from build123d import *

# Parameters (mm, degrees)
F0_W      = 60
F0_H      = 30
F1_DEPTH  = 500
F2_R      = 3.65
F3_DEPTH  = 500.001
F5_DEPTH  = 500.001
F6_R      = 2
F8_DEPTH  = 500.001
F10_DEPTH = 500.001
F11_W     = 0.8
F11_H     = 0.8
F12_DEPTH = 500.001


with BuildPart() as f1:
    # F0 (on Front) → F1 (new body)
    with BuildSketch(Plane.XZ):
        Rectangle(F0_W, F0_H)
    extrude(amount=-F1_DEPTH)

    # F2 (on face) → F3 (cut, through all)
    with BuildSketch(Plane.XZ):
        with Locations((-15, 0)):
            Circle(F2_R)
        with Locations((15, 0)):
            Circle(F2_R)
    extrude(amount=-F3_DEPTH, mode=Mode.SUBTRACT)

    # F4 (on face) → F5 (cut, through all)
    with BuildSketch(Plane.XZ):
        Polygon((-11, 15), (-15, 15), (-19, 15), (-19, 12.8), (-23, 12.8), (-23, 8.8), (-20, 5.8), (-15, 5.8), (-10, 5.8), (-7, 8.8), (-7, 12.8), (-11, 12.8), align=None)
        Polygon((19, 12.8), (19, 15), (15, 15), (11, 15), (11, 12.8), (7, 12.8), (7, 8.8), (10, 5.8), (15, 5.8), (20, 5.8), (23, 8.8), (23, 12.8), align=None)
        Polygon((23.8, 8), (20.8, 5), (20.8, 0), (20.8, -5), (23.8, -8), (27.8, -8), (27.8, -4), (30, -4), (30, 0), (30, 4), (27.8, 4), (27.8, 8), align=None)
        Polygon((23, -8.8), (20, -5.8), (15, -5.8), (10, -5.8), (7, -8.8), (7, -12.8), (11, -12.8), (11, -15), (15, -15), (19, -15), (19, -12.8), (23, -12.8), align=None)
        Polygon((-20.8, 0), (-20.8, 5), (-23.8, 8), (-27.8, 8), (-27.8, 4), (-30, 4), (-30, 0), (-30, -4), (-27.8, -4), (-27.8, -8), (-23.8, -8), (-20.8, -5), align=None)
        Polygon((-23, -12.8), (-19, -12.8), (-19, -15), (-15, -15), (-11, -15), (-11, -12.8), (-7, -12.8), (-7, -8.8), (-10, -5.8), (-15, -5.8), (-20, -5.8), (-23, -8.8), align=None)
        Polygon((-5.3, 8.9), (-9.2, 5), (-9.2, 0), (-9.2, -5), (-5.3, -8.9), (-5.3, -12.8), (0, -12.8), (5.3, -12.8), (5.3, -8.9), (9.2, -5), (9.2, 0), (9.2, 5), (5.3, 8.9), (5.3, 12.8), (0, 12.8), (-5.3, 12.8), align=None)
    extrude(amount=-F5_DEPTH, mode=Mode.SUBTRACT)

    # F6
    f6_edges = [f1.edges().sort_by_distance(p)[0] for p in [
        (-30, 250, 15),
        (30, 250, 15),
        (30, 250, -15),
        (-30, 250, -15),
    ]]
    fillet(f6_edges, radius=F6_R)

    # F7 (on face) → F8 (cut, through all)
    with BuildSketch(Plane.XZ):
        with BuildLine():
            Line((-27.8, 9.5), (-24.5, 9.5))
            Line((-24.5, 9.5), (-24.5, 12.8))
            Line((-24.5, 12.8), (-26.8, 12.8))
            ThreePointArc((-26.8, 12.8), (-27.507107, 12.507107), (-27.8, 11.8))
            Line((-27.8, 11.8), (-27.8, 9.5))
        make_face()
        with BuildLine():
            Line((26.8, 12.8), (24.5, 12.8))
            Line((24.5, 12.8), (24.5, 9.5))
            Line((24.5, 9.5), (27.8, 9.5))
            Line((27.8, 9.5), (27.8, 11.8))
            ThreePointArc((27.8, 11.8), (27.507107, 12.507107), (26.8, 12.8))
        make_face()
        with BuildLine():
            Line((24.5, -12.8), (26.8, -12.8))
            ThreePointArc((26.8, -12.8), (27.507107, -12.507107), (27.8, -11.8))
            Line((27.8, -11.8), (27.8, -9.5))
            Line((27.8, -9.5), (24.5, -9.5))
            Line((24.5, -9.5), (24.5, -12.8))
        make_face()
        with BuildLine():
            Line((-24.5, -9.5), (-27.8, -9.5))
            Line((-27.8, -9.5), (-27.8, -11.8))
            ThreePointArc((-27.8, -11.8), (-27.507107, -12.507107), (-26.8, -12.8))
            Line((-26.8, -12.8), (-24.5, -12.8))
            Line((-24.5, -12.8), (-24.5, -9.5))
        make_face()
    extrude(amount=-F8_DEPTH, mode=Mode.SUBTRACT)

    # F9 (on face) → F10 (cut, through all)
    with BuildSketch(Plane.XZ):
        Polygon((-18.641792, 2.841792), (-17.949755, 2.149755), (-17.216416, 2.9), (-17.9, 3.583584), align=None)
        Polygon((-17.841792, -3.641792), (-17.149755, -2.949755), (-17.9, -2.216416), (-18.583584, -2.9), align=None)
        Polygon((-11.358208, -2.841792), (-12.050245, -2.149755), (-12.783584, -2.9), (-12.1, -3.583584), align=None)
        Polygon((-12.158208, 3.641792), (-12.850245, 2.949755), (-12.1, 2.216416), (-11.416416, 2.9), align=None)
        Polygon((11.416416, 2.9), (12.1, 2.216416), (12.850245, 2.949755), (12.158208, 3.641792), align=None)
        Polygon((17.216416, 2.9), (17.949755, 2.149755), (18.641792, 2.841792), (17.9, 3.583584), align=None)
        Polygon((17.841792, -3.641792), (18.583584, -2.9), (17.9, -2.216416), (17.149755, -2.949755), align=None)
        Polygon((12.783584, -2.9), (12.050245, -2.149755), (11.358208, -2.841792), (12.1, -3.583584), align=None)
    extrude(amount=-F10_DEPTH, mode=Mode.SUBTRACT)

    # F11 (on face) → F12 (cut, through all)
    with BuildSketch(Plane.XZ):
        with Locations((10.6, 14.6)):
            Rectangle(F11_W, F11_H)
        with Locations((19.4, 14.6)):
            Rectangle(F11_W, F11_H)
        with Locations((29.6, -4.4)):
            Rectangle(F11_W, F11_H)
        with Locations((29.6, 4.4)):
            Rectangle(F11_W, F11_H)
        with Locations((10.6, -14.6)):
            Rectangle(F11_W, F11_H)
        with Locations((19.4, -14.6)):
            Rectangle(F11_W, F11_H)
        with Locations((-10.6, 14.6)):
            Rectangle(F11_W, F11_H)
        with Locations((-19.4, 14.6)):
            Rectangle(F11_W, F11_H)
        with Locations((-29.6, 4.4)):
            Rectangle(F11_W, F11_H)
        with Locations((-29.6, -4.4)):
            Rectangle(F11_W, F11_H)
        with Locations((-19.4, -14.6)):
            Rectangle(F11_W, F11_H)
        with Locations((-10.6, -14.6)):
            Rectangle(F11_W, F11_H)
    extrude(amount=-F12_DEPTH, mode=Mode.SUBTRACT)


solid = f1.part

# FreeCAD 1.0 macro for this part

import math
import FreeCAD as App
import Part
import Sketcher


def edges_at(feature, points):
    """Names of the edges that pass closest to the given points."""
    edges = feature.Shape.Edges
    near = lambda p: min(range(len(edges)), key=lambda i: edges[i].distToShape(Part.Vertex(*p))[0])
    return sorted({f"Edge{near(p) + 1}" for p in points})

doc = App.newDocument("Part")
params = doc.addObject("Spreadsheet::Sheet", "Params")
for row, (alias, value) in enumerate([
    ("sketch1_width", "60 mm"),
    ("sketch1_height", "30 mm"),
    ("pad1_length", "500 mm"),
    ("sketch2_diameter", "7.3 mm"),
    ("sketch3_width", "8 mm"),
    ("sketch3_width2", "4 mm"),
    ("sketch3_width3", "10 mm"),
    ("sketch3_width4", "2.2 mm"),
    ("sketch3_width5", "10.6 mm"),
    ("fillet_radius", "2 mm"),
    ("sketch4_radius", "0.999999 mm"),
    ("sketch4_width", "3.3 mm"),
    ("sketch6_width", "0.8 mm"),
], start=1):
    params.set(f"A{row}", alias)
    params.set(f"B{row}", "=" + value)
    params.setAlias(f"B{row}", alias)

body = doc.addObject("PartDesign::Body", "Body")

# Sketch on XZ plane
sketch1 = body.newObject("Sketcher::SketchObject", "Sketch")
sketch1.AttachmentSupport = (doc.getObject("XZ_Plane"), [""])
sketch1.MapMode = "FlatFace"
sketch1.addGeometry([
    Part.LineSegment(App.Vector(-30, 15, 0), App.Vector(-30, -15, 0)),
    Part.LineSegment(App.Vector(-30, -15, 0), App.Vector(30, -15, 0)),
    Part.LineSegment(App.Vector(30, -15, 0), App.Vector(30, 15, 0)),
    Part.LineSegment(App.Vector(30, 15, 0), App.Vector(-30, 15, 0)),
], False)
sketch1.addConstraint([
    Sketcher.Constraint("Coincident", 0, 2, 1, 1),
    Sketcher.Constraint("Coincident", 1, 2, 2, 1),
    Sketcher.Constraint("Coincident", 2, 2, 3, 1),
    Sketcher.Constraint("Coincident", 3, 2, 0, 1),
    Sketcher.Constraint("Vertical", 0),
    Sketcher.Constraint("Horizontal", 1),
    Sketcher.Constraint("Vertical", 2),
    Sketcher.Constraint("Horizontal", 3),
    Sketcher.Constraint("Symmetric", 0, 2, 2, 2, -1, 1),
    Sketcher.Constraint("DistanceX", 1, 1, 1, 2, 60.0),
    Sketcher.Constraint("DistanceY", 0, 2, 0, 1, 30.0),
])
sketch1.setExpression("Constraints[9]", "Params.sketch1_width")
sketch1.setExpression("Constraints[10]", "Params.sketch1_height")
pad1 = body.newObject("PartDesign::Pad", "Pad")
pad1.Profile = sketch1
pad1.setExpression("Length", "Params.pad1_length")
pad1.Reversed = True

# Sketch on XZ plane
sketch2 = body.newObject("Sketcher::SketchObject", "Sketch001")
sketch2.AttachmentSupport = (doc.getObject("XZ_Plane"), [""])
sketch2.MapMode = "FlatFace"
sketch2.addGeometry([
    Part.Circle(App.Vector(-15, 0, 0), App.Vector(0, 0, 1), 3.6),
    Part.Circle(App.Vector(15, 0, 0), App.Vector(0, 0, 1), 3.6),
], False)
sketch2.addConstraint([
    Sketcher.Constraint("Equal", 0, 1),
    Sketcher.Constraint("Symmetric", 0, 3, 1, 3, -1, 1),
    Sketcher.Constraint("PointOnObject", 0, 3, -1),
    Sketcher.Constraint("Diameter", 0, 7.3),
    Sketcher.Constraint("DistanceX", 0, 3, -1, 1, 15.0),
])
sketch2.setExpression("Constraints[3]", "Params.sketch2_diameter")
pocket1 = body.newObject("PartDesign::Pocket", "Pocket")
pocket1.Profile = sketch2
pocket1.Type = "ThroughAll"

# Sketch on XZ plane
sketch3 = body.newObject("Sketcher::SketchObject", "Sketch002")
sketch3.AttachmentSupport = (doc.getObject("XZ_Plane"), [""])
sketch3.MapMode = "FlatFace"
sketch3.addGeometry([
    Part.LineSegment(App.Vector(-11, 15, 0), App.Vector(-19, 15, 0)),  # 0
    Part.LineSegment(App.Vector(-19, 15, 0), App.Vector(-19, 12.8, 0)),  # 1
    Part.LineSegment(App.Vector(-19, 12.8, 0), App.Vector(-23, 12.8, 0)),  # 2
    Part.LineSegment(App.Vector(-23, 12.8, 0), App.Vector(-23, 8.8, 0)),  # 3
    Part.LineSegment(App.Vector(-23, 8.8, 0), App.Vector(-20, 5.8, 0)),  # 4
    Part.LineSegment(App.Vector(-20, 5.8, 0), App.Vector(-10, 5.8, 0)),  # 5
    Part.LineSegment(App.Vector(-10, 5.8, 0), App.Vector(-7, 8.8, 0)),  # 6
    Part.LineSegment(App.Vector(-7, 8.8, 0), App.Vector(-7, 12.8, 0)),  # 7
    Part.LineSegment(App.Vector(-7, 12.8, 0), App.Vector(-11, 12.8, 0)),  # 8
    Part.LineSegment(App.Vector(-11, 12.8, 0), App.Vector(-11, 15, 0)),  # 9
    Part.LineSegment(App.Vector(19, 12.8, 0), App.Vector(19, 15, 0)),  # 10
    Part.LineSegment(App.Vector(19, 15, 0), App.Vector(11, 15, 0)),  # 11
    Part.LineSegment(App.Vector(11, 15, 0), App.Vector(11, 12.8, 0)),  # 12
    Part.LineSegment(App.Vector(11, 12.8, 0), App.Vector(7, 12.8, 0)),  # 13
    Part.LineSegment(App.Vector(7, 12.8, 0), App.Vector(7, 8.8, 0)),  # 14
    Part.LineSegment(App.Vector(7, 8.8, 0), App.Vector(10, 5.8, 0)),  # 15
    Part.LineSegment(App.Vector(10, 5.8, 0), App.Vector(20, 5.8, 0)),  # 16
    Part.LineSegment(App.Vector(20, 5.8, 0), App.Vector(23, 8.8, 0)),  # 17
    Part.LineSegment(App.Vector(23, 8.8, 0), App.Vector(23, 12.8, 0)),  # 18
    Part.LineSegment(App.Vector(23, 12.8, 0), App.Vector(19, 12.8, 0)),  # 19
    Part.LineSegment(App.Vector(23.8, 8, 0), App.Vector(20.8, 5, 0)),  # 20
    Part.LineSegment(App.Vector(20.8, 5, 0), App.Vector(20.8, -5, 0)),  # 21
    Part.LineSegment(App.Vector(20.8, -5, 0), App.Vector(23.8, -8, 0)),  # 22
    Part.LineSegment(App.Vector(23.8, -8, 0), App.Vector(27.8, -8, 0)),  # 23
    Part.LineSegment(App.Vector(27.8, -8, 0), App.Vector(27.8, -4, 0)),  # 24
    Part.LineSegment(App.Vector(27.8, -4, 0), App.Vector(30, -4, 0)),  # 25
    Part.LineSegment(App.Vector(30, -4, 0), App.Vector(30, 4, 0)),  # 26
    Part.LineSegment(App.Vector(30, 4, 0), App.Vector(27.8, 4, 0)),  # 27
    Part.LineSegment(App.Vector(27.8, 4, 0), App.Vector(27.8, 8, 0)),  # 28
    Part.LineSegment(App.Vector(27.8, 8, 0), App.Vector(23.8, 8, 0)),  # 29
    Part.LineSegment(App.Vector(23, -8.8, 0), App.Vector(20, -5.8, 0)),  # 30
    Part.LineSegment(App.Vector(20, -5.8, 0), App.Vector(10, -5.8, 0)),  # 31
    Part.LineSegment(App.Vector(10, -5.8, 0), App.Vector(7, -8.8, 0)),  # 32
    Part.LineSegment(App.Vector(7, -8.8, 0), App.Vector(7, -12.8, 0)),  # 33
    Part.LineSegment(App.Vector(7, -12.8, 0), App.Vector(11, -12.8, 0)),  # 34
    Part.LineSegment(App.Vector(11, -12.8, 0), App.Vector(11, -15, 0)),  # 35
    Part.LineSegment(App.Vector(11, -15, 0), App.Vector(19, -15, 0)),  # 36
    Part.LineSegment(App.Vector(19, -15, 0), App.Vector(19, -12.8, 0)),  # 37
    Part.LineSegment(App.Vector(19, -12.8, 0), App.Vector(23, -12.8, 0)),  # 38
    Part.LineSegment(App.Vector(23, -12.8, 0), App.Vector(23, -8.8, 0)),  # 39
    Part.LineSegment(App.Vector(-20.8, 5, 0), App.Vector(-23.8, 8, 0)),  # 40
    Part.LineSegment(App.Vector(-23.8, 8, 0), App.Vector(-27.8, 8, 0)),  # 41
    Part.LineSegment(App.Vector(-27.8, 8, 0), App.Vector(-27.8, 4, 0)),  # 42
    Part.LineSegment(App.Vector(-27.8, 4, 0), App.Vector(-30, 4, 0)),  # 43
    Part.LineSegment(App.Vector(-30, 4, 0), App.Vector(-30, -4, 0)),  # 44
    Part.LineSegment(App.Vector(-30, -4, 0), App.Vector(-27.8, -4, 0)),  # 45
    Part.LineSegment(App.Vector(-27.8, -4, 0), App.Vector(-27.8, -8, 0)),  # 46
    Part.LineSegment(App.Vector(-27.8, -8, 0), App.Vector(-23.8, -8, 0)),  # 47
    Part.LineSegment(App.Vector(-23.8, -8, 0), App.Vector(-20.8, -5, 0)),  # 48
    Part.LineSegment(App.Vector(-20.8, -5, 0), App.Vector(-20.8, 5, 0)),  # 49
    Part.LineSegment(App.Vector(-23, -12.8, 0), App.Vector(-19, -12.8, 0)),  # 50
    Part.LineSegment(App.Vector(-19, -12.8, 0), App.Vector(-19, -15, 0)),  # 51
    Part.LineSegment(App.Vector(-19, -15, 0), App.Vector(-11, -15, 0)),  # 52
    Part.LineSegment(App.Vector(-11, -15, 0), App.Vector(-11, -12.8, 0)),  # 53
    Part.LineSegment(App.Vector(-11, -12.8, 0), App.Vector(-7, -12.8, 0)),  # 54
    Part.LineSegment(App.Vector(-7, -12.8, 0), App.Vector(-7, -8.8, 0)),  # 55
    Part.LineSegment(App.Vector(-7, -8.8, 0), App.Vector(-10, -5.8, 0)),  # 56
    Part.LineSegment(App.Vector(-10, -5.8, 0), App.Vector(-20, -5.8, 0)),  # 57
    Part.LineSegment(App.Vector(-20, -5.8, 0), App.Vector(-23, -8.8, 0)),  # 58
    Part.LineSegment(App.Vector(-23, -8.8, 0), App.Vector(-23, -12.8, 0)),  # 59
    Part.LineSegment(App.Vector(-5.3, 8.9, 0), App.Vector(-9.2, 5, 0)),  # 60
    Part.LineSegment(App.Vector(-9.2, 5, 0), App.Vector(-9.2, -5, 0)),  # 61
    Part.LineSegment(App.Vector(-9.2, -5, 0), App.Vector(-5.3, -8.9, 0)),  # 62
    Part.LineSegment(App.Vector(-5.3, -8.9, 0), App.Vector(-5.3, -12.8, 0)),  # 63
    Part.LineSegment(App.Vector(-5.3, -12.8, 0), App.Vector(5.3, -12.8, 0)),  # 64
    Part.LineSegment(App.Vector(5.3, -12.8, 0), App.Vector(5.3, -8.9, 0)),  # 65
    Part.LineSegment(App.Vector(5.3, -8.9, 0), App.Vector(9.2, -5, 0)),  # 66
    Part.LineSegment(App.Vector(9.2, -5, 0), App.Vector(9.2, 5, 0)),  # 67
    Part.LineSegment(App.Vector(9.2, 5, 0), App.Vector(5.3, 8.9, 0)),  # 68
    Part.LineSegment(App.Vector(5.3, 8.9, 0), App.Vector(5.3, 12.8, 0)),  # 69
    Part.LineSegment(App.Vector(5.3, 12.8, 0), App.Vector(-5.3, 12.8, 0)),  # 70
    Part.LineSegment(App.Vector(-5.3, 12.8, 0), App.Vector(-5.3, 8.9, 0)),  # 71
], False)
sketch3.addConstraint([
    Sketcher.Constraint("Coincident", 0, 2, 1, 1),
    Sketcher.Constraint("Coincident", 1, 2, 2, 1),
    Sketcher.Constraint("Coincident", 2, 2, 3, 1),
    Sketcher.Constraint("Coincident", 3, 2, 4, 1),
    Sketcher.Constraint("Coincident", 4, 2, 5, 1),
    Sketcher.Constraint("Coincident", 5, 2, 6, 1),
    Sketcher.Constraint("Coincident", 6, 2, 7, 1),
    Sketcher.Constraint("Coincident", 7, 2, 8, 1),
    Sketcher.Constraint("Coincident", 8, 2, 9, 1),
    Sketcher.Constraint("Coincident", 9, 2, 0, 1),
    Sketcher.Constraint("Coincident", 10, 2, 11, 1),
    Sketcher.Constraint("Coincident", 11, 2, 12, 1),
    Sketcher.Constraint("Coincident", 12, 2, 13, 1),
    Sketcher.Constraint("Coincident", 13, 2, 14, 1),
    Sketcher.Constraint("Coincident", 14, 2, 15, 1),
    Sketcher.Constraint("Coincident", 15, 2, 16, 1),
    Sketcher.Constraint("Coincident", 16, 2, 17, 1),
    Sketcher.Constraint("Coincident", 17, 2, 18, 1),
    Sketcher.Constraint("Coincident", 18, 2, 19, 1),
    Sketcher.Constraint("Coincident", 19, 2, 10, 1),
    Sketcher.Constraint("Coincident", 20, 2, 21, 1),
    Sketcher.Constraint("Coincident", 21, 2, 22, 1),
    Sketcher.Constraint("Coincident", 22, 2, 23, 1),
    Sketcher.Constraint("Coincident", 23, 2, 24, 1),
    Sketcher.Constraint("Coincident", 24, 2, 25, 1),
    Sketcher.Constraint("Coincident", 25, 2, 26, 1),
    Sketcher.Constraint("Coincident", 26, 2, 27, 1),
    Sketcher.Constraint("Coincident", 27, 2, 28, 1),
    Sketcher.Constraint("Coincident", 28, 2, 29, 1),
    Sketcher.Constraint("Coincident", 29, 2, 20, 1),
    Sketcher.Constraint("Coincident", 30, 2, 31, 1),
    Sketcher.Constraint("Coincident", 31, 2, 32, 1),
    Sketcher.Constraint("Coincident", 32, 2, 33, 1),
    Sketcher.Constraint("Coincident", 33, 2, 34, 1),
    Sketcher.Constraint("Coincident", 34, 2, 35, 1),
    Sketcher.Constraint("Coincident", 35, 2, 36, 1),
    Sketcher.Constraint("Coincident", 36, 2, 37, 1),
    Sketcher.Constraint("Coincident", 37, 2, 38, 1),
    Sketcher.Constraint("Coincident", 38, 2, 39, 1),
    Sketcher.Constraint("Coincident", 39, 2, 30, 1),
    Sketcher.Constraint("Coincident", 40, 2, 41, 1),
    Sketcher.Constraint("Coincident", 41, 2, 42, 1),
    Sketcher.Constraint("Coincident", 42, 2, 43, 1),
    Sketcher.Constraint("Coincident", 43, 2, 44, 1),
    Sketcher.Constraint("Coincident", 44, 2, 45, 1),
    Sketcher.Constraint("Coincident", 45, 2, 46, 1),
    Sketcher.Constraint("Coincident", 46, 2, 47, 1),
    Sketcher.Constraint("Coincident", 47, 2, 48, 1),
    Sketcher.Constraint("Coincident", 48, 2, 49, 1),
    Sketcher.Constraint("Coincident", 49, 2, 40, 1),
    Sketcher.Constraint("Coincident", 50, 2, 51, 1),
    Sketcher.Constraint("Coincident", 51, 2, 52, 1),
    Sketcher.Constraint("Coincident", 52, 2, 53, 1),
    Sketcher.Constraint("Coincident", 53, 2, 54, 1),
    Sketcher.Constraint("Coincident", 54, 2, 55, 1),
    Sketcher.Constraint("Coincident", 55, 2, 56, 1),
    Sketcher.Constraint("Coincident", 56, 2, 57, 1),
    Sketcher.Constraint("Coincident", 57, 2, 58, 1),
    Sketcher.Constraint("Coincident", 58, 2, 59, 1),
    Sketcher.Constraint("Coincident", 59, 2, 50, 1),
    Sketcher.Constraint("Coincident", 60, 2, 61, 1),
    Sketcher.Constraint("Coincident", 61, 2, 62, 1),
    Sketcher.Constraint("Coincident", 62, 2, 63, 1),
    Sketcher.Constraint("Coincident", 63, 2, 64, 1),
    Sketcher.Constraint("Coincident", 64, 2, 65, 1),
    Sketcher.Constraint("Coincident", 65, 2, 66, 1),
    Sketcher.Constraint("Coincident", 66, 2, 67, 1),
    Sketcher.Constraint("Coincident", 67, 2, 68, 1),
    Sketcher.Constraint("Coincident", 68, 2, 69, 1),
    Sketcher.Constraint("Coincident", 69, 2, 70, 1),
    Sketcher.Constraint("Coincident", 70, 2, 71, 1),
    Sketcher.Constraint("Coincident", 71, 2, 60, 1),
    Sketcher.Constraint("Horizontal", 0),
    Sketcher.Constraint("Vertical", 1),
    Sketcher.Constraint("Horizontal", 2),
    Sketcher.Constraint("Vertical", 3),
    Sketcher.Constraint("Horizontal", 5),
    Sketcher.Constraint("Vertical", 7),
    Sketcher.Constraint("Horizontal", 8),
    Sketcher.Constraint("Vertical", 9),
    Sketcher.Constraint("Vertical", 10),
    Sketcher.Constraint("Horizontal", 11),
    Sketcher.Constraint("Vertical", 12),
    Sketcher.Constraint("Horizontal", 13),
    Sketcher.Constraint("Vertical", 14),
    Sketcher.Constraint("Horizontal", 16),
    Sketcher.Constraint("Vertical", 18),
    Sketcher.Constraint("Horizontal", 19),
    Sketcher.Constraint("Vertical", 21),
    Sketcher.Constraint("Horizontal", 23),
    Sketcher.Constraint("Vertical", 24),
    Sketcher.Constraint("Horizontal", 25),
    Sketcher.Constraint("Vertical", 26),
    Sketcher.Constraint("Horizontal", 27),
    Sketcher.Constraint("Vertical", 28),
    Sketcher.Constraint("Horizontal", 29),
    Sketcher.Constraint("Horizontal", 31),
    Sketcher.Constraint("Vertical", 33),
    Sketcher.Constraint("Horizontal", 34),
    Sketcher.Constraint("Vertical", 35),
    Sketcher.Constraint("Horizontal", 36),
    Sketcher.Constraint("Vertical", 37),
    Sketcher.Constraint("Horizontal", 38),
    Sketcher.Constraint("Vertical", 39),
    Sketcher.Constraint("Horizontal", 41),
    Sketcher.Constraint("Vertical", 42),
    Sketcher.Constraint("Horizontal", 43),
    Sketcher.Constraint("Vertical", 44),
    Sketcher.Constraint("Horizontal", 45),
    Sketcher.Constraint("Vertical", 46),
    Sketcher.Constraint("Horizontal", 47),
    Sketcher.Constraint("Vertical", 49),
    Sketcher.Constraint("Horizontal", 50),
    Sketcher.Constraint("Vertical", 51),
    Sketcher.Constraint("Horizontal", 52),
    Sketcher.Constraint("Vertical", 53),
    Sketcher.Constraint("Horizontal", 54),
    Sketcher.Constraint("Vertical", 55),
    Sketcher.Constraint("Horizontal", 57),
    Sketcher.Constraint("Vertical", 59),
    Sketcher.Constraint("Vertical", 61),
    Sketcher.Constraint("Vertical", 63),
    Sketcher.Constraint("Horizontal", 64),
    Sketcher.Constraint("Vertical", 65),
    Sketcher.Constraint("Vertical", 67),
    Sketcher.Constraint("Vertical", 69),
    Sketcher.Constraint("Horizontal", 70),
    Sketcher.Constraint("Vertical", 71),
    Sketcher.Constraint("Symmetric", 4, 2, 30, 2, -1, 1),
    Sketcher.Constraint("Symmetric", 6, 2, 32, 2, -1, 1),
    Sketcher.Constraint("Symmetric", 8, 2, 34, 2, -1, 1),
    Sketcher.Constraint("Symmetric", 0, 2, 36, 2, -1, 1),
    Sketcher.Constraint("Symmetric", 2, 2, 38, 2, -1, 1),
    Sketcher.Constraint("Symmetric", 22, 2, 40, 2, -1, 1),
    Sketcher.Constraint("Symmetric", 24, 2, 42, 2, -1, 1),
    Sketcher.Constraint("Symmetric", 26, 2, 44, 2, -1, 1),
    Sketcher.Constraint("Symmetric", 28, 2, 46, 2, -1, 1),
    Sketcher.Constraint("Symmetric", 20, 2, 48, 2, -1, 1),
    Sketcher.Constraint("Symmetric", 19, 2, 50, 2, -1, 1),
    Sketcher.Constraint("Symmetric", 11, 2, 52, 2, -1, 1),
    Sketcher.Constraint("Symmetric", 13, 2, 54, 2, -1, 1),
    Sketcher.Constraint("Symmetric", 15, 2, 56, 2, -1, 1),
    Sketcher.Constraint("Symmetric", 17, 2, 58, 2, -1, 1),
    Sketcher.Constraint("Symmetric", 60, 2, 66, 2, -1, 1),
    Sketcher.Constraint("Symmetric", 62, 2, 68, 2, -1, 1),
    Sketcher.Constraint("Symmetric", 64, 2, 70, 2, -1, 1),
    Sketcher.Constraint("Symmetric", 0, 2, 10, 2, -2),
    Sketcher.Constraint("Symmetric", 8, 2, 12, 2, -2),
    Sketcher.Constraint("Symmetric", 6, 2, 14, 2, -2),
    Sketcher.Constraint("Symmetric", 5, 2, 15, 2, -2),
    Sketcher.Constraint("Symmetric", 3, 2, 17, 2, -2),
    Sketcher.Constraint("Symmetric", 29, 2, 40, 2, -2),
    Sketcher.Constraint("Symmetric", 27, 2, 42, 2, -2),
    Sketcher.Constraint("Symmetric", 62, 2, 65, 2, -2),
    Sketcher.Constraint("Perpendicular", 4, 6),
    Sketcher.Constraint("Perpendicular", 6, 15),
    Sketcher.Constraint("Perpendicular", 15, 17),
    Sketcher.Constraint("Parallel", 17, 20),
    Sketcher.Constraint("Perpendicular", 20, 22),
    Sketcher.Constraint("Parallel", 22, 30),
    Sketcher.Constraint("Perpendicular", 30, 32),
    Sketcher.Constraint("Perpendicular", 32, 40),
    Sketcher.Constraint("Perpendicular", 40, 48),
    Sketcher.Constraint("Perpendicular", 48, 56),
    Sketcher.Constraint("Perpendicular", 56, 58),
    Sketcher.Constraint("Parallel", 58, 60),
    Sketcher.Constraint("Perpendicular", 60, 62),
    Sketcher.Constraint("Perpendicular", 62, 66),
    Sketcher.Constraint("Perpendicular", 66, 68),
    Sketcher.Constraint("Horizontal", 3, 2, 6, 2),
    Sketcher.Constraint("Horizontal", 2, 2, 7, 2),
    Sketcher.Constraint("Horizontal", 13, 2, 18, 2),
    Sketcher.Constraint("Horizontal", 49, 2, 60, 2),
    Sketcher.Constraint("Horizontal", 59, 2, 63, 2),
    Sketcher.Constraint("Equal", 2, 8),
    Sketcher.Constraint("Equal", 19, 23),
    Sketcher.Constraint("Equal", 45, 1),
    Sketcher.Constraint("Equal", 54, 3),
    Sketcher.Constraint("Equal", 57, 21),
    Sketcher.Constraint("Equal", 18, 24),
    Sketcher.Constraint("Equal", 52, 26),
    Sketcher.Constraint("DistanceX", 0, 2, 0, 1, 8.0),
    Sketcher.Constraint("DistanceX", 2, 2, 2, 1, 4.0),
    Sketcher.Constraint("DistanceX", 5, 1, 5, 2, 10.0),
    Sketcher.Constraint("DistanceX", 25, 1, 25, 2, 2.2),
    Sketcher.Constraint("DistanceX", 64, 1, 64, 2, 10.6),
    Sketcher.Constraint("DistanceY", 63, 2, 63, 1, 3.9),
    Sketcher.Constraint("DistanceX", 0, 2, -1, 1, 19.0),
    Sketcher.Constraint("DistanceY", -1, 1, 0, 2, 15.0),
    Sketcher.Constraint("DistanceX", -1, 1, 25, 2, 30.0),
])
sketch3.setExpression("Constraints[181]", "Params.sketch3_width")
sketch3.setExpression("Constraints[182]", "Params.sketch3_width2")
sketch3.setExpression("Constraints[183]", "Params.sketch3_width3")
sketch3.setExpression("Constraints[184]", "Params.sketch3_width4")
sketch3.setExpression("Constraints[185]", "Params.sketch3_width5")
pocket2 = body.newObject("PartDesign::Pocket", "Pocket001")
pocket2.Profile = sketch3
pocket2.Type = "ThroughAll"
doc.recompute()

fillet = body.newObject("PartDesign::Fillet", "Fillet")
fillet.Base = (pocket2, edges_at(pocket2, [
    (-30, 250, 15),
    (30, 250, 15),
    (30, 250, -15),
    (-30, 250, -15),
]))
fillet.setExpression("Radius", "Params.fillet_radius")

# Sketch on XZ plane
sketch4 = body.newObject("Sketcher::SketchObject", "Sketch003")
sketch4.AttachmentSupport = (doc.getObject("XZ_Plane"), [""])
sketch4.MapMode = "FlatFace"
sketch4.addGeometry([
    Part.LineSegment(App.Vector(-27.8, 9.5, 0), App.Vector(-24.5, 9.5, 0)),  # 0
    Part.LineSegment(App.Vector(-24.5, 9.5, 0), App.Vector(-24.5, 12.8, 0)),  # 1
    Part.LineSegment(App.Vector(-24.5, 12.8, 0), App.Vector(-26.8, 12.8, 0)),  # 2
    Part.ArcOfCircle(Part.Circle(App.Vector(-26.8, 11.8, 0), App.Vector(0, 0, 1), 1), math.radians(90), math.radians(180)),  # 3
    Part.LineSegment(App.Vector(-27.8, 11.8, 0), App.Vector(-27.8, 9.5, 0)),  # 4
    Part.LineSegment(App.Vector(26.8, 12.8, 0), App.Vector(24.5, 12.8, 0)),  # 5
    Part.LineSegment(App.Vector(24.5, 12.8, 0), App.Vector(24.5, 9.5, 0)),  # 6
    Part.LineSegment(App.Vector(24.5, 9.5, 0), App.Vector(27.8, 9.5, 0)),  # 7
    Part.LineSegment(App.Vector(27.8, 9.5, 0), App.Vector(27.8, 11.8, 0)),  # 8
    Part.ArcOfCircle(Part.Circle(App.Vector(26.8, 11.8, 0), App.Vector(0, 0, 1), 1), math.radians(0), math.radians(90)),  # 9
    Part.LineSegment(App.Vector(24.5, -12.8, 0), App.Vector(26.8, -12.8, 0)),  # 10
    Part.ArcOfCircle(Part.Circle(App.Vector(26.8, -11.8, 0), App.Vector(0, 0, 1), 1), math.radians(-90), math.radians(0)),  # 11
    Part.LineSegment(App.Vector(27.8, -11.8, 0), App.Vector(27.8, -9.5, 0)),  # 12
    Part.LineSegment(App.Vector(27.8, -9.5, 0), App.Vector(24.5, -9.5, 0)),  # 13
    Part.LineSegment(App.Vector(24.5, -9.5, 0), App.Vector(24.5, -12.8, 0)),  # 14
    Part.LineSegment(App.Vector(-24.5, -9.5, 0), App.Vector(-27.8, -9.5, 0)),  # 15
    Part.LineSegment(App.Vector(-27.8, -9.5, 0), App.Vector(-27.8, -11.8, 0)),  # 16
    Part.ArcOfCircle(Part.Circle(App.Vector(-26.8, -11.8, 0), App.Vector(0, 0, 1), 1), math.radians(180), math.radians(270)),  # 17
    Part.LineSegment(App.Vector(-26.8, -12.8, 0), App.Vector(-24.5, -12.8, 0)),  # 18
    Part.LineSegment(App.Vector(-24.5, -12.8, 0), App.Vector(-24.5, -9.5, 0)),  # 19
], False)
sketch4.addConstraint([
    Sketcher.Constraint("Coincident", 0, 2, 1, 1),
    Sketcher.Constraint("Coincident", 1, 2, 2, 1),
    Sketcher.Constraint("Tangent", 2, 2, 3, 1),
    Sketcher.Constraint("Tangent", 3, 2, 4, 1),
    Sketcher.Constraint("Coincident", 4, 2, 0, 1),
    Sketcher.Constraint("Coincident", 5, 2, 6, 1),
    Sketcher.Constraint("Coincident", 6, 2, 7, 1),
    Sketcher.Constraint("Coincident", 7, 2, 8, 1),
    Sketcher.Constraint("Tangent", 8, 2, 9, 1),
    Sketcher.Constraint("Tangent", 9, 2, 5, 1),
    Sketcher.Constraint("Tangent", 10, 2, 11, 1),
    Sketcher.Constraint("Tangent", 11, 2, 12, 1),
    Sketcher.Constraint("Coincident", 12, 2, 13, 1),
    Sketcher.Constraint("Coincident", 13, 2, 14, 1),
    Sketcher.Constraint("Coincident", 14, 2, 10, 1),
    Sketcher.Constraint("Coincident", 15, 2, 16, 1),
    Sketcher.Constraint("Tangent", 16, 2, 17, 1),
    Sketcher.Constraint("Tangent", 17, 2, 18, 1),
    Sketcher.Constraint("Coincident", 18, 2, 19, 1),
    Sketcher.Constraint("Coincident", 19, 2, 15, 1),
    Sketcher.Constraint("Horizontal", 0),
    Sketcher.Constraint("Vertical", 1),
    Sketcher.Constraint("Horizontal", 2),
    Sketcher.Constraint("Vertical", 4),
    Sketcher.Constraint("Horizontal", 5),
    Sketcher.Constraint("Vertical", 6),
    Sketcher.Constraint("Horizontal", 7),
    Sketcher.Constraint("Vertical", 8),
    Sketcher.Constraint("Horizontal", 10),
    Sketcher.Constraint("Vertical", 12),
    Sketcher.Constraint("Horizontal", 13),
    Sketcher.Constraint("Vertical", 14),
    Sketcher.Constraint("Horizontal", 15),
    Sketcher.Constraint("Vertical", 16),
    Sketcher.Constraint("Horizontal", 18),
    Sketcher.Constraint("Vertical", 19),
    Sketcher.Constraint("Equal", 3, 9),
    Sketcher.Constraint("Equal", 9, 11),
    Sketcher.Constraint("Equal", 11, 17),
    Sketcher.Constraint("Symmetric", 3, 3, 11, 3, -1, 1),
    Sketcher.Constraint("Symmetric", 9, 3, 17, 3, -1, 1),
    Sketcher.Constraint("Symmetric", 0, 2, 13, 2, -1, 1),
    Sketcher.Constraint("Symmetric", 6, 2, 19, 2, -1, 1),
    Sketcher.Constraint("Symmetric", 3, 3, 9, 3, -2),
    Sketcher.Constraint("Symmetric", 0, 2, 6, 2, -2),
    Sketcher.Constraint("Equal", 15, 1),
    Sketcher.Constraint("Radius", 3, 0.999999),
    Sketcher.Constraint("DistanceX", 0, 1, 0, 2, 3.3),
    Sketcher.Constraint("DistanceX", 1, 2, 5, 2, 49.0),
    Sketcher.Constraint("DistanceY", 12, 2, 7, 2, 19.0),
])
sketch4.setExpression("Constraints[46]", "Params.sketch4_radius")
sketch4.setExpression("Constraints[47]", "Params.sketch4_width")
pocket3 = body.newObject("PartDesign::Pocket", "Pocket002")
pocket3.Profile = sketch4
pocket3.Type = "ThroughAll"

# Sketch on XZ plane
sketch5 = body.newObject("Sketcher::SketchObject", "Sketch004")
sketch5.AttachmentSupport = (doc.getObject("XZ_Plane"), [""])
sketch5.MapMode = "FlatFace"
sketch5.addGeometry([
    Part.LineSegment(App.Vector(-18.6, 2.8, 0), App.Vector(-17.9, 2.1, 0)),  # 0
    Part.LineSegment(App.Vector(-17.9, 2.1, 0), App.Vector(-17.2, 2.9, 0)),  # 1
    Part.LineSegment(App.Vector(-17.2, 2.9, 0), App.Vector(-17.9, 3.6, 0)),  # 2
    Part.LineSegment(App.Vector(-17.9, 3.6, 0), App.Vector(-18.6, 2.8, 0)),  # 3
    Part.LineSegment(App.Vector(-17.8, -3.6, 0), App.Vector(-17.1, -2.9, 0)),  # 4
    Part.LineSegment(App.Vector(-17.1, -2.9, 0), App.Vector(-17.9, -2.2, 0)),  # 5
    Part.LineSegment(App.Vector(-17.9, -2.2, 0), App.Vector(-18.6, -2.9, 0)),  # 6
    Part.LineSegment(App.Vector(-18.6, -2.9, 0), App.Vector(-17.8, -3.6, 0)),  # 7
    Part.LineSegment(App.Vector(-11.4, -2.8, 0), App.Vector(-12.1, -2.1, 0)),  # 8
    Part.LineSegment(App.Vector(-12.1, -2.1, 0), App.Vector(-12.8, -2.9, 0)),  # 9
    Part.LineSegment(App.Vector(-12.8, -2.9, 0), App.Vector(-12.1, -3.6, 0)),  # 10
    Part.LineSegment(App.Vector(-12.1, -3.6, 0), App.Vector(-11.4, -2.8, 0)),  # 11
    Part.LineSegment(App.Vector(-12.2, 3.6, 0), App.Vector(-12.9, 2.9, 0)),  # 12
    Part.LineSegment(App.Vector(-12.9, 2.9, 0), App.Vector(-12.1, 2.2, 0)),  # 13
    Part.LineSegment(App.Vector(-12.1, 2.2, 0), App.Vector(-11.4, 2.9, 0)),  # 14
    Part.LineSegment(App.Vector(-11.4, 2.9, 0), App.Vector(-12.2, 3.6, 0)),  # 15
    Part.LineSegment(App.Vector(11.4, 2.9, 0), App.Vector(12.1, 2.2, 0)),  # 16
    Part.LineSegment(App.Vector(12.1, 2.2, 0), App.Vector(12.9, 2.9, 0)),  # 17
    Part.LineSegment(App.Vector(12.9, 2.9, 0), App.Vector(12.2, 3.6, 0)),  # 18
    Part.LineSegment(App.Vector(12.2, 3.6, 0), App.Vector(11.4, 2.9, 0)),  # 19
    Part.LineSegment(App.Vector(17.2, 2.9, 0), App.Vector(17.9, 2.1, 0)),  # 20
    Part.LineSegment(App.Vector(17.9, 2.1, 0), App.Vector(18.6, 2.8, 0)),  # 21
    Part.LineSegment(App.Vector(18.6, 2.8, 0), App.Vector(17.9, 3.6, 0)),  # 22
    Part.LineSegment(App.Vector(17.9, 3.6, 0), App.Vector(17.2, 2.9, 0)),  # 23
    Part.LineSegment(App.Vector(17.8, -3.6, 0), App.Vector(18.6, -2.9, 0)),  # 24
    Part.LineSegment(App.Vector(18.6, -2.9, 0), App.Vector(17.9, -2.2, 0)),  # 25
    Part.LineSegment(App.Vector(17.9, -2.2, 0), App.Vector(17.1, -2.9, 0)),  # 26
    Part.LineSegment(App.Vector(17.1, -2.9, 0), App.Vector(17.8, -3.6, 0)),  # 27
    Part.LineSegment(App.Vector(12.8, -2.9, 0), App.Vector(12.1, -2.1, 0)),  # 28
    Part.LineSegment(App.Vector(12.1, -2.1, 0), App.Vector(11.4, -2.8, 0)),  # 29
    Part.LineSegment(App.Vector(11.4, -2.8, 0), App.Vector(12.1, -3.6, 0)),  # 30
    Part.LineSegment(App.Vector(12.1, -3.6, 0), App.Vector(12.8, -2.9, 0)),  # 31
], False)
sketch5.addConstraint([
    Sketcher.Constraint("Coincident", 0, 2, 1, 1),
    Sketcher.Constraint("Coincident", 1, 2, 2, 1),
    Sketcher.Constraint("Coincident", 2, 2, 3, 1),
    Sketcher.Constraint("Coincident", 3, 2, 0, 1),
    Sketcher.Constraint("Coincident", 4, 2, 5, 1),
    Sketcher.Constraint("Coincident", 5, 2, 6, 1),
    Sketcher.Constraint("Coincident", 6, 2, 7, 1),
    Sketcher.Constraint("Coincident", 7, 2, 4, 1),
    Sketcher.Constraint("Coincident", 8, 2, 9, 1),
    Sketcher.Constraint("Coincident", 9, 2, 10, 1),
    Sketcher.Constraint("Coincident", 10, 2, 11, 1),
    Sketcher.Constraint("Coincident", 11, 2, 8, 1),
    Sketcher.Constraint("Coincident", 12, 2, 13, 1),
    Sketcher.Constraint("Coincident", 13, 2, 14, 1),
    Sketcher.Constraint("Coincident", 14, 2, 15, 1),
    Sketcher.Constraint("Coincident", 15, 2, 12, 1),
    Sketcher.Constraint("Coincident", 16, 2, 17, 1),
    Sketcher.Constraint("Coincident", 17, 2, 18, 1),
    Sketcher.Constraint("Coincident", 18, 2, 19, 1),
    Sketcher.Constraint("Coincident", 19, 2, 16, 1),
    Sketcher.Constraint("Coincident", 20, 2, 21, 1),
    Sketcher.Constraint("Coincident", 21, 2, 22, 1),
    Sketcher.Constraint("Coincident", 22, 2, 23, 1),
    Sketcher.Constraint("Coincident", 23, 2, 20, 1),
    Sketcher.Constraint("Coincident", 24, 2, 25, 1),
    Sketcher.Constraint("Coincident", 25, 2, 26, 1),
    Sketcher.Constraint("Coincident", 26, 2, 27, 1),
    Sketcher.Constraint("Coincident", 27, 2, 24, 1),
    Sketcher.Constraint("Coincident", 28, 2, 29, 1),
    Sketcher.Constraint("Coincident", 29, 2, 30, 1),
    Sketcher.Constraint("Coincident", 30, 2, 31, 1),
    Sketcher.Constraint("Coincident", 31, 2, 28, 1),
    Sketcher.Constraint("Symmetric", 13, 2, 16, 2, -2),
    Sketcher.Constraint("Symmetric", 12, 2, 17, 2, -2),
    Sketcher.Constraint("Symmetric", 15, 2, 18, 2, -2),
    Sketcher.Constraint("Symmetric", 14, 2, 19, 2, -2),
    Sketcher.Constraint("Symmetric", 0, 2, 20, 2, -2),
    Sketcher.Constraint("Symmetric", 3, 2, 21, 2, -2),
    Sketcher.Constraint("Symmetric", 2, 2, 22, 2, -2),
    Sketcher.Constraint("Symmetric", 1, 2, 23, 2, -2),
    Sketcher.Constraint("Symmetric", 6, 2, 24, 2, -2),
    Sketcher.Constraint("Symmetric", 5, 2, 25, 2, -2),
    Sketcher.Constraint("Symmetric", 4, 2, 26, 2, -2),
    Sketcher.Constraint("Symmetric", 7, 2, 27, 2, -2),
    Sketcher.Constraint("Symmetric", 8, 2, 28, 2, -2),
    Sketcher.Constraint("Symmetric", 11, 2, 29, 2, -2),
    Sketcher.Constraint("Symmetric", 10, 2, 30, 2, -2),
    Sketcher.Constraint("Symmetric", 9, 2, 31, 2, -2),
    Sketcher.Constraint("Parallel", 0, 2),
    Sketcher.Constraint("Perpendicular", 2, 3),
    Sketcher.Constraint("Parallel", 3, 4),
    Sketcher.Constraint("Perpendicular", 1, 5),
    Sketcher.Constraint("Parallel", 4, 6),
    Sketcher.Constraint("Perpendicular", 6, 7),
    Sketcher.Constraint("Parallel", 7, 8),
    Sketcher.Constraint("Perpendicular", 5, 9),
    Sketcher.Constraint("Parallel", 8, 10),
    Sketcher.Constraint("Perpendicular", 10, 11),
    Sketcher.Constraint("Parallel", 11, 12),
    Sketcher.Constraint("Perpendicular", 9, 13),
    Sketcher.Constraint("Parallel", 12, 14),
    Sketcher.Constraint("Perpendicular", 14, 15),
    Sketcher.Constraint("Parallel", 15, 16),
    Sketcher.Constraint("Horizontal", 6, 2, 9, 2),
    Sketcher.Constraint("Horizontal", 1, 2, 14, 2),
    Sketcher.Constraint("Vertical", 2, 2, 5, 2),
    Sketcher.Constraint("Vertical", 10, 2, 13, 2),
    Sketcher.Constraint("Equal", 0, 4),
    Sketcher.Constraint("Equal", 1, 5),
    Sketcher.Constraint("Equal", 4, 8),
    Sketcher.Constraint("Equal", 5, 9),
    Sketcher.Constraint("Equal", 8, 12),
    Sketcher.Constraint("Equal", 9, 13),
    Sketcher.Constraint("DistanceY", -1, 1, 1, 2, 2.9),
    Sketcher.Constraint("DistanceX", 2, 2, -1, 1, 17.9),
    Sketcher.Constraint("DistanceY", 6, 2, -1, 1, 2.9),
    Sketcher.Constraint("DistanceX", 10, 2, -1, 1, 12.1),
    Sketcher.Constraint("DistanceX", 0, 2, 4, 2, 0.8),
    Sketcher.Constraint("Distance", 0, 0.978688),
    Sketcher.Constraint("Distance", 1, 1.04912),
])
pocket4 = body.newObject("PartDesign::Pocket", "Pocket003")
pocket4.Profile = sketch5
pocket4.Type = "ThroughAll"

# Sketch on XZ plane
sketch6 = body.newObject("Sketcher::SketchObject", "Sketch005")
sketch6.AttachmentSupport = (doc.getObject("XZ_Plane"), [""])
sketch6.MapMode = "FlatFace"
sketch6.addGeometry([
    Part.LineSegment(App.Vector(10.2, 15, 0), App.Vector(10.2, 14.2, 0)),  # 0
    Part.LineSegment(App.Vector(10.2, 14.2, 0), App.Vector(11, 14.2, 0)),  # 1
    Part.LineSegment(App.Vector(11, 14.2, 0), App.Vector(11, 15, 0)),  # 2
    Part.LineSegment(App.Vector(11, 15, 0), App.Vector(10.2, 15, 0)),  # 3
    Part.LineSegment(App.Vector(19, 15, 0), App.Vector(19, 14.2, 0)),  # 4
    Part.LineSegment(App.Vector(19, 14.2, 0), App.Vector(19.8, 14.2, 0)),  # 5
    Part.LineSegment(App.Vector(19.8, 14.2, 0), App.Vector(19.8, 15, 0)),  # 6
    Part.LineSegment(App.Vector(19.8, 15, 0), App.Vector(19, 15, 0)),  # 7
    Part.LineSegment(App.Vector(29.2, -4, 0), App.Vector(29.2, -4.8, 0)),  # 8
    Part.LineSegment(App.Vector(29.2, -4.8, 0), App.Vector(30, -4.8, 0)),  # 9
    Part.LineSegment(App.Vector(30, -4.8, 0), App.Vector(30, -4, 0)),  # 10
    Part.LineSegment(App.Vector(30, -4, 0), App.Vector(29.2, -4, 0)),  # 11
    Part.LineSegment(App.Vector(29.2, 4.8, 0), App.Vector(29.2, 4, 0)),  # 12
    Part.LineSegment(App.Vector(29.2, 4, 0), App.Vector(30, 4, 0)),  # 13
    Part.LineSegment(App.Vector(30, 4, 0), App.Vector(30, 4.8, 0)),  # 14
    Part.LineSegment(App.Vector(30, 4.8, 0), App.Vector(29.2, 4.8, 0)),  # 15
    Part.LineSegment(App.Vector(10.2, -14.2, 0), App.Vector(10.2, -15, 0)),  # 16
    Part.LineSegment(App.Vector(10.2, -15, 0), App.Vector(11, -15, 0)),  # 17
    Part.LineSegment(App.Vector(11, -15, 0), App.Vector(11, -14.2, 0)),  # 18
    Part.LineSegment(App.Vector(11, -14.2, 0), App.Vector(10.2, -14.2, 0)),  # 19
    Part.LineSegment(App.Vector(19, -14.2, 0), App.Vector(19, -15, 0)),  # 20
    Part.LineSegment(App.Vector(19, -15, 0), App.Vector(19.8, -15, 0)),  # 21
    Part.LineSegment(App.Vector(19.8, -15, 0), App.Vector(19.8, -14.2, 0)),  # 22
    Part.LineSegment(App.Vector(19.8, -14.2, 0), App.Vector(19, -14.2, 0)),  # 23
    Part.LineSegment(App.Vector(-11, 15, 0), App.Vector(-11, 14.2, 0)),  # 24
    Part.LineSegment(App.Vector(-11, 14.2, 0), App.Vector(-10.2, 14.2, 0)),  # 25
    Part.LineSegment(App.Vector(-10.2, 14.2, 0), App.Vector(-10.2, 15, 0)),  # 26
    Part.LineSegment(App.Vector(-10.2, 15, 0), App.Vector(-11, 15, 0)),  # 27
    Part.LineSegment(App.Vector(-19.8, 15, 0), App.Vector(-19.8, 14.2, 0)),  # 28
    Part.LineSegment(App.Vector(-19.8, 14.2, 0), App.Vector(-19, 14.2, 0)),  # 29
    Part.LineSegment(App.Vector(-19, 14.2, 0), App.Vector(-19, 15, 0)),  # 30
    Part.LineSegment(App.Vector(-19, 15, 0), App.Vector(-19.8, 15, 0)),  # 31
    Part.LineSegment(App.Vector(-30, 4.8, 0), App.Vector(-30, 4, 0)),  # 32
    Part.LineSegment(App.Vector(-30, 4, 0), App.Vector(-29.2, 4, 0)),  # 33
    Part.LineSegment(App.Vector(-29.2, 4, 0), App.Vector(-29.2, 4.8, 0)),  # 34
    Part.LineSegment(App.Vector(-29.2, 4.8, 0), App.Vector(-30, 4.8, 0)),  # 35
    Part.LineSegment(App.Vector(-30, -4, 0), App.Vector(-30, -4.8, 0)),  # 36
    Part.LineSegment(App.Vector(-30, -4.8, 0), App.Vector(-29.2, -4.8, 0)),  # 37
    Part.LineSegment(App.Vector(-29.2, -4.8, 0), App.Vector(-29.2, -4, 0)),  # 38
    Part.LineSegment(App.Vector(-29.2, -4, 0), App.Vector(-30, -4, 0)),  # 39
    Part.LineSegment(App.Vector(-19.8, -14.2, 0), App.Vector(-19.8, -15, 0)),  # 40
    Part.LineSegment(App.Vector(-19.8, -15, 0), App.Vector(-19, -15, 0)),  # 41
    Part.LineSegment(App.Vector(-19, -15, 0), App.Vector(-19, -14.2, 0)),  # 42
    Part.LineSegment(App.Vector(-19, -14.2, 0), App.Vector(-19.8, -14.2, 0)),  # 43
    Part.LineSegment(App.Vector(-11, -14.2, 0), App.Vector(-11, -15, 0)),  # 44
    Part.LineSegment(App.Vector(-11, -15, 0), App.Vector(-10.2, -15, 0)),  # 45
    Part.LineSegment(App.Vector(-10.2, -15, 0), App.Vector(-10.2, -14.2, 0)),  # 46
    Part.LineSegment(App.Vector(-10.2, -14.2, 0), App.Vector(-11, -14.2, 0)),  # 47
], False)
sketch6.addConstraint([
    Sketcher.Constraint("Coincident", 0, 2, 1, 1),
    Sketcher.Constraint("Coincident", 1, 2, 2, 1),
    Sketcher.Constraint("Coincident", 2, 2, 3, 1),
    Sketcher.Constraint("Coincident", 3, 2, 0, 1),
    Sketcher.Constraint("Coincident", 4, 2, 5, 1),
    Sketcher.Constraint("Coincident", 5, 2, 6, 1),
    Sketcher.Constraint("Coincident", 6, 2, 7, 1),
    Sketcher.Constraint("Coincident", 7, 2, 4, 1),
    Sketcher.Constraint("Coincident", 8, 2, 9, 1),
    Sketcher.Constraint("Coincident", 9, 2, 10, 1),
    Sketcher.Constraint("Coincident", 10, 2, 11, 1),
    Sketcher.Constraint("Coincident", 11, 2, 8, 1),
    Sketcher.Constraint("Coincident", 12, 2, 13, 1),
    Sketcher.Constraint("Coincident", 13, 2, 14, 1),
    Sketcher.Constraint("Coincident", 14, 2, 15, 1),
    Sketcher.Constraint("Coincident", 15, 2, 12, 1),
    Sketcher.Constraint("Coincident", 16, 2, 17, 1),
    Sketcher.Constraint("Coincident", 17, 2, 18, 1),
    Sketcher.Constraint("Coincident", 18, 2, 19, 1),
    Sketcher.Constraint("Coincident", 19, 2, 16, 1),
    Sketcher.Constraint("Coincident", 20, 2, 21, 1),
    Sketcher.Constraint("Coincident", 21, 2, 22, 1),
    Sketcher.Constraint("Coincident", 22, 2, 23, 1),
    Sketcher.Constraint("Coincident", 23, 2, 20, 1),
    Sketcher.Constraint("Coincident", 24, 2, 25, 1),
    Sketcher.Constraint("Coincident", 25, 2, 26, 1),
    Sketcher.Constraint("Coincident", 26, 2, 27, 1),
    Sketcher.Constraint("Coincident", 27, 2, 24, 1),
    Sketcher.Constraint("Coincident", 28, 2, 29, 1),
    Sketcher.Constraint("Coincident", 29, 2, 30, 1),
    Sketcher.Constraint("Coincident", 30, 2, 31, 1),
    Sketcher.Constraint("Coincident", 31, 2, 28, 1),
    Sketcher.Constraint("Coincident", 32, 2, 33, 1),
    Sketcher.Constraint("Coincident", 33, 2, 34, 1),
    Sketcher.Constraint("Coincident", 34, 2, 35, 1),
    Sketcher.Constraint("Coincident", 35, 2, 32, 1),
    Sketcher.Constraint("Coincident", 36, 2, 37, 1),
    Sketcher.Constraint("Coincident", 37, 2, 38, 1),
    Sketcher.Constraint("Coincident", 38, 2, 39, 1),
    Sketcher.Constraint("Coincident", 39, 2, 36, 1),
    Sketcher.Constraint("Coincident", 40, 2, 41, 1),
    Sketcher.Constraint("Coincident", 41, 2, 42, 1),
    Sketcher.Constraint("Coincident", 42, 2, 43, 1),
    Sketcher.Constraint("Coincident", 43, 2, 40, 1),
    Sketcher.Constraint("Coincident", 44, 2, 45, 1),
    Sketcher.Constraint("Coincident", 45, 2, 46, 1),
    Sketcher.Constraint("Coincident", 46, 2, 47, 1),
    Sketcher.Constraint("Coincident", 47, 2, 44, 1),
    Sketcher.Constraint("Vertical", 0),
    Sketcher.Constraint("Horizontal", 1),
    Sketcher.Constraint("Vertical", 2),
    Sketcher.Constraint("Horizontal", 3),
    Sketcher.Constraint("Vertical", 4),
    Sketcher.Constraint("Horizontal", 5),
    Sketcher.Constraint("Vertical", 6),
    Sketcher.Constraint("Horizontal", 7),
    Sketcher.Constraint("Vertical", 8),
    Sketcher.Constraint("Horizontal", 9),
    Sketcher.Constraint("Vertical", 10),
    Sketcher.Constraint("Horizontal", 11),
    Sketcher.Constraint("Vertical", 12),
    Sketcher.Constraint("Horizontal", 13),
    Sketcher.Constraint("Vertical", 14),
    Sketcher.Constraint("Horizontal", 15),
    Sketcher.Constraint("Vertical", 16),
    Sketcher.Constraint("Horizontal", 17),
    Sketcher.Constraint("Vertical", 18),
    Sketcher.Constraint("Horizontal", 19),
    Sketcher.Constraint("Vertical", 20),
    Sketcher.Constraint("Horizontal", 21),
    Sketcher.Constraint("Vertical", 22),
    Sketcher.Constraint("Horizontal", 23),
    Sketcher.Constraint("Vertical", 24),
    Sketcher.Constraint("Horizontal", 25),
    Sketcher.Constraint("Vertical", 26),
    Sketcher.Constraint("Horizontal", 27),
    Sketcher.Constraint("Vertical", 28),
    Sketcher.Constraint("Horizontal", 29),
    Sketcher.Constraint("Vertical", 30),
    Sketcher.Constraint("Horizontal", 31),
    Sketcher.Constraint("Vertical", 32),
    Sketcher.Constraint("Horizontal", 33),
    Sketcher.Constraint("Vertical", 34),
    Sketcher.Constraint("Horizontal", 35),
    Sketcher.Constraint("Vertical", 36),
    Sketcher.Constraint("Horizontal", 37),
    Sketcher.Constraint("Vertical", 38),
    Sketcher.Constraint("Horizontal", 39),
    Sketcher.Constraint("Vertical", 40),
    Sketcher.Constraint("Horizontal", 41),
    Sketcher.Constraint("Vertical", 42),
    Sketcher.Constraint("Horizontal", 43),
    Sketcher.Constraint("Vertical", 44),
    Sketcher.Constraint("Horizontal", 45),
    Sketcher.Constraint("Vertical", 46),
    Sketcher.Constraint("Horizontal", 47),
    Sketcher.Constraint("Symmetric", 18, 2, 24, 2, -1, 1),
    Sketcher.Constraint("Symmetric", 16, 2, 26, 2, -1, 1),
    Sketcher.Constraint("Symmetric", 22, 2, 28, 2, -1, 1),
    Sketcher.Constraint("Symmetric", 20, 2, 30, 2, -1, 1),
    Sketcher.Constraint("Symmetric", 10, 2, 32, 2, -1, 1),
    Sketcher.Constraint("Symmetric", 8, 2, 34, 2, -1, 1),
    Sketcher.Constraint("Symmetric", 14, 2, 36, 2, -1, 1),
    Sketcher.Constraint("Symmetric", 12, 2, 38, 2, -1, 1),
    Sketcher.Constraint("Symmetric", 6, 2, 40, 2, -1, 1),
    Sketcher.Constraint("Symmetric", 4, 2, 42, 2, -1, 1),
    Sketcher.Constraint("Symmetric", 2, 2, 44, 2, -1, 1),
    Sketcher.Constraint("Symmetric", 0, 2, 46, 2, -1, 1),
    Sketcher.Constraint("Symmetric", 1, 2, 24, 2, -2),
    Sketcher.Constraint("Symmetric", 3, 2, 26, 2, -2),
    Sketcher.Constraint("Symmetric", 5, 2, 28, 2, -2),
    Sketcher.Constraint("Symmetric", 7, 2, 30, 2, -2),
    Sketcher.Constraint("Symmetric", 13, 2, 32, 2, -2),
    Sketcher.Constraint("Symmetric", 15, 2, 34, 2, -2),
    Sketcher.Constraint("Horizontal", 1, 2, 4, 2),
    Sketcher.Constraint("Horizontal", 3, 2, 6, 2),
    Sketcher.Constraint("Equal", 3, 5),
    Sketcher.Constraint("Equal", 7, 9),
    Sketcher.Constraint("Equal", 47, 0),
    Sketcher.Constraint("Equal", 6, 8),
    Sketcher.Constraint("DistanceX", 1, 1, 1, 2, 0.8),
    Sketcher.Constraint("DistanceX", -1, 1, 1, 2, 11.0),
    Sketcher.Constraint("DistanceY", -1, 1, 2, 2, 15.0),
    Sketcher.Constraint("DistanceX", -1, 1, 4, 2, 19.0),
    Sketcher.Constraint("DistanceX", -1, 1, 9, 2, 30.0),
    Sketcher.Constraint("DistanceY", 10, 2, -1, 1, 4.0),
])
sketch6.setExpression("Constraints[120]", "Params.sketch6_width")
pocket5 = body.newObject("PartDesign::Pocket", "Pocket004")
pocket5.Profile = sketch6
pocket5.Type = "ThroughAll"

doc.recompute()
